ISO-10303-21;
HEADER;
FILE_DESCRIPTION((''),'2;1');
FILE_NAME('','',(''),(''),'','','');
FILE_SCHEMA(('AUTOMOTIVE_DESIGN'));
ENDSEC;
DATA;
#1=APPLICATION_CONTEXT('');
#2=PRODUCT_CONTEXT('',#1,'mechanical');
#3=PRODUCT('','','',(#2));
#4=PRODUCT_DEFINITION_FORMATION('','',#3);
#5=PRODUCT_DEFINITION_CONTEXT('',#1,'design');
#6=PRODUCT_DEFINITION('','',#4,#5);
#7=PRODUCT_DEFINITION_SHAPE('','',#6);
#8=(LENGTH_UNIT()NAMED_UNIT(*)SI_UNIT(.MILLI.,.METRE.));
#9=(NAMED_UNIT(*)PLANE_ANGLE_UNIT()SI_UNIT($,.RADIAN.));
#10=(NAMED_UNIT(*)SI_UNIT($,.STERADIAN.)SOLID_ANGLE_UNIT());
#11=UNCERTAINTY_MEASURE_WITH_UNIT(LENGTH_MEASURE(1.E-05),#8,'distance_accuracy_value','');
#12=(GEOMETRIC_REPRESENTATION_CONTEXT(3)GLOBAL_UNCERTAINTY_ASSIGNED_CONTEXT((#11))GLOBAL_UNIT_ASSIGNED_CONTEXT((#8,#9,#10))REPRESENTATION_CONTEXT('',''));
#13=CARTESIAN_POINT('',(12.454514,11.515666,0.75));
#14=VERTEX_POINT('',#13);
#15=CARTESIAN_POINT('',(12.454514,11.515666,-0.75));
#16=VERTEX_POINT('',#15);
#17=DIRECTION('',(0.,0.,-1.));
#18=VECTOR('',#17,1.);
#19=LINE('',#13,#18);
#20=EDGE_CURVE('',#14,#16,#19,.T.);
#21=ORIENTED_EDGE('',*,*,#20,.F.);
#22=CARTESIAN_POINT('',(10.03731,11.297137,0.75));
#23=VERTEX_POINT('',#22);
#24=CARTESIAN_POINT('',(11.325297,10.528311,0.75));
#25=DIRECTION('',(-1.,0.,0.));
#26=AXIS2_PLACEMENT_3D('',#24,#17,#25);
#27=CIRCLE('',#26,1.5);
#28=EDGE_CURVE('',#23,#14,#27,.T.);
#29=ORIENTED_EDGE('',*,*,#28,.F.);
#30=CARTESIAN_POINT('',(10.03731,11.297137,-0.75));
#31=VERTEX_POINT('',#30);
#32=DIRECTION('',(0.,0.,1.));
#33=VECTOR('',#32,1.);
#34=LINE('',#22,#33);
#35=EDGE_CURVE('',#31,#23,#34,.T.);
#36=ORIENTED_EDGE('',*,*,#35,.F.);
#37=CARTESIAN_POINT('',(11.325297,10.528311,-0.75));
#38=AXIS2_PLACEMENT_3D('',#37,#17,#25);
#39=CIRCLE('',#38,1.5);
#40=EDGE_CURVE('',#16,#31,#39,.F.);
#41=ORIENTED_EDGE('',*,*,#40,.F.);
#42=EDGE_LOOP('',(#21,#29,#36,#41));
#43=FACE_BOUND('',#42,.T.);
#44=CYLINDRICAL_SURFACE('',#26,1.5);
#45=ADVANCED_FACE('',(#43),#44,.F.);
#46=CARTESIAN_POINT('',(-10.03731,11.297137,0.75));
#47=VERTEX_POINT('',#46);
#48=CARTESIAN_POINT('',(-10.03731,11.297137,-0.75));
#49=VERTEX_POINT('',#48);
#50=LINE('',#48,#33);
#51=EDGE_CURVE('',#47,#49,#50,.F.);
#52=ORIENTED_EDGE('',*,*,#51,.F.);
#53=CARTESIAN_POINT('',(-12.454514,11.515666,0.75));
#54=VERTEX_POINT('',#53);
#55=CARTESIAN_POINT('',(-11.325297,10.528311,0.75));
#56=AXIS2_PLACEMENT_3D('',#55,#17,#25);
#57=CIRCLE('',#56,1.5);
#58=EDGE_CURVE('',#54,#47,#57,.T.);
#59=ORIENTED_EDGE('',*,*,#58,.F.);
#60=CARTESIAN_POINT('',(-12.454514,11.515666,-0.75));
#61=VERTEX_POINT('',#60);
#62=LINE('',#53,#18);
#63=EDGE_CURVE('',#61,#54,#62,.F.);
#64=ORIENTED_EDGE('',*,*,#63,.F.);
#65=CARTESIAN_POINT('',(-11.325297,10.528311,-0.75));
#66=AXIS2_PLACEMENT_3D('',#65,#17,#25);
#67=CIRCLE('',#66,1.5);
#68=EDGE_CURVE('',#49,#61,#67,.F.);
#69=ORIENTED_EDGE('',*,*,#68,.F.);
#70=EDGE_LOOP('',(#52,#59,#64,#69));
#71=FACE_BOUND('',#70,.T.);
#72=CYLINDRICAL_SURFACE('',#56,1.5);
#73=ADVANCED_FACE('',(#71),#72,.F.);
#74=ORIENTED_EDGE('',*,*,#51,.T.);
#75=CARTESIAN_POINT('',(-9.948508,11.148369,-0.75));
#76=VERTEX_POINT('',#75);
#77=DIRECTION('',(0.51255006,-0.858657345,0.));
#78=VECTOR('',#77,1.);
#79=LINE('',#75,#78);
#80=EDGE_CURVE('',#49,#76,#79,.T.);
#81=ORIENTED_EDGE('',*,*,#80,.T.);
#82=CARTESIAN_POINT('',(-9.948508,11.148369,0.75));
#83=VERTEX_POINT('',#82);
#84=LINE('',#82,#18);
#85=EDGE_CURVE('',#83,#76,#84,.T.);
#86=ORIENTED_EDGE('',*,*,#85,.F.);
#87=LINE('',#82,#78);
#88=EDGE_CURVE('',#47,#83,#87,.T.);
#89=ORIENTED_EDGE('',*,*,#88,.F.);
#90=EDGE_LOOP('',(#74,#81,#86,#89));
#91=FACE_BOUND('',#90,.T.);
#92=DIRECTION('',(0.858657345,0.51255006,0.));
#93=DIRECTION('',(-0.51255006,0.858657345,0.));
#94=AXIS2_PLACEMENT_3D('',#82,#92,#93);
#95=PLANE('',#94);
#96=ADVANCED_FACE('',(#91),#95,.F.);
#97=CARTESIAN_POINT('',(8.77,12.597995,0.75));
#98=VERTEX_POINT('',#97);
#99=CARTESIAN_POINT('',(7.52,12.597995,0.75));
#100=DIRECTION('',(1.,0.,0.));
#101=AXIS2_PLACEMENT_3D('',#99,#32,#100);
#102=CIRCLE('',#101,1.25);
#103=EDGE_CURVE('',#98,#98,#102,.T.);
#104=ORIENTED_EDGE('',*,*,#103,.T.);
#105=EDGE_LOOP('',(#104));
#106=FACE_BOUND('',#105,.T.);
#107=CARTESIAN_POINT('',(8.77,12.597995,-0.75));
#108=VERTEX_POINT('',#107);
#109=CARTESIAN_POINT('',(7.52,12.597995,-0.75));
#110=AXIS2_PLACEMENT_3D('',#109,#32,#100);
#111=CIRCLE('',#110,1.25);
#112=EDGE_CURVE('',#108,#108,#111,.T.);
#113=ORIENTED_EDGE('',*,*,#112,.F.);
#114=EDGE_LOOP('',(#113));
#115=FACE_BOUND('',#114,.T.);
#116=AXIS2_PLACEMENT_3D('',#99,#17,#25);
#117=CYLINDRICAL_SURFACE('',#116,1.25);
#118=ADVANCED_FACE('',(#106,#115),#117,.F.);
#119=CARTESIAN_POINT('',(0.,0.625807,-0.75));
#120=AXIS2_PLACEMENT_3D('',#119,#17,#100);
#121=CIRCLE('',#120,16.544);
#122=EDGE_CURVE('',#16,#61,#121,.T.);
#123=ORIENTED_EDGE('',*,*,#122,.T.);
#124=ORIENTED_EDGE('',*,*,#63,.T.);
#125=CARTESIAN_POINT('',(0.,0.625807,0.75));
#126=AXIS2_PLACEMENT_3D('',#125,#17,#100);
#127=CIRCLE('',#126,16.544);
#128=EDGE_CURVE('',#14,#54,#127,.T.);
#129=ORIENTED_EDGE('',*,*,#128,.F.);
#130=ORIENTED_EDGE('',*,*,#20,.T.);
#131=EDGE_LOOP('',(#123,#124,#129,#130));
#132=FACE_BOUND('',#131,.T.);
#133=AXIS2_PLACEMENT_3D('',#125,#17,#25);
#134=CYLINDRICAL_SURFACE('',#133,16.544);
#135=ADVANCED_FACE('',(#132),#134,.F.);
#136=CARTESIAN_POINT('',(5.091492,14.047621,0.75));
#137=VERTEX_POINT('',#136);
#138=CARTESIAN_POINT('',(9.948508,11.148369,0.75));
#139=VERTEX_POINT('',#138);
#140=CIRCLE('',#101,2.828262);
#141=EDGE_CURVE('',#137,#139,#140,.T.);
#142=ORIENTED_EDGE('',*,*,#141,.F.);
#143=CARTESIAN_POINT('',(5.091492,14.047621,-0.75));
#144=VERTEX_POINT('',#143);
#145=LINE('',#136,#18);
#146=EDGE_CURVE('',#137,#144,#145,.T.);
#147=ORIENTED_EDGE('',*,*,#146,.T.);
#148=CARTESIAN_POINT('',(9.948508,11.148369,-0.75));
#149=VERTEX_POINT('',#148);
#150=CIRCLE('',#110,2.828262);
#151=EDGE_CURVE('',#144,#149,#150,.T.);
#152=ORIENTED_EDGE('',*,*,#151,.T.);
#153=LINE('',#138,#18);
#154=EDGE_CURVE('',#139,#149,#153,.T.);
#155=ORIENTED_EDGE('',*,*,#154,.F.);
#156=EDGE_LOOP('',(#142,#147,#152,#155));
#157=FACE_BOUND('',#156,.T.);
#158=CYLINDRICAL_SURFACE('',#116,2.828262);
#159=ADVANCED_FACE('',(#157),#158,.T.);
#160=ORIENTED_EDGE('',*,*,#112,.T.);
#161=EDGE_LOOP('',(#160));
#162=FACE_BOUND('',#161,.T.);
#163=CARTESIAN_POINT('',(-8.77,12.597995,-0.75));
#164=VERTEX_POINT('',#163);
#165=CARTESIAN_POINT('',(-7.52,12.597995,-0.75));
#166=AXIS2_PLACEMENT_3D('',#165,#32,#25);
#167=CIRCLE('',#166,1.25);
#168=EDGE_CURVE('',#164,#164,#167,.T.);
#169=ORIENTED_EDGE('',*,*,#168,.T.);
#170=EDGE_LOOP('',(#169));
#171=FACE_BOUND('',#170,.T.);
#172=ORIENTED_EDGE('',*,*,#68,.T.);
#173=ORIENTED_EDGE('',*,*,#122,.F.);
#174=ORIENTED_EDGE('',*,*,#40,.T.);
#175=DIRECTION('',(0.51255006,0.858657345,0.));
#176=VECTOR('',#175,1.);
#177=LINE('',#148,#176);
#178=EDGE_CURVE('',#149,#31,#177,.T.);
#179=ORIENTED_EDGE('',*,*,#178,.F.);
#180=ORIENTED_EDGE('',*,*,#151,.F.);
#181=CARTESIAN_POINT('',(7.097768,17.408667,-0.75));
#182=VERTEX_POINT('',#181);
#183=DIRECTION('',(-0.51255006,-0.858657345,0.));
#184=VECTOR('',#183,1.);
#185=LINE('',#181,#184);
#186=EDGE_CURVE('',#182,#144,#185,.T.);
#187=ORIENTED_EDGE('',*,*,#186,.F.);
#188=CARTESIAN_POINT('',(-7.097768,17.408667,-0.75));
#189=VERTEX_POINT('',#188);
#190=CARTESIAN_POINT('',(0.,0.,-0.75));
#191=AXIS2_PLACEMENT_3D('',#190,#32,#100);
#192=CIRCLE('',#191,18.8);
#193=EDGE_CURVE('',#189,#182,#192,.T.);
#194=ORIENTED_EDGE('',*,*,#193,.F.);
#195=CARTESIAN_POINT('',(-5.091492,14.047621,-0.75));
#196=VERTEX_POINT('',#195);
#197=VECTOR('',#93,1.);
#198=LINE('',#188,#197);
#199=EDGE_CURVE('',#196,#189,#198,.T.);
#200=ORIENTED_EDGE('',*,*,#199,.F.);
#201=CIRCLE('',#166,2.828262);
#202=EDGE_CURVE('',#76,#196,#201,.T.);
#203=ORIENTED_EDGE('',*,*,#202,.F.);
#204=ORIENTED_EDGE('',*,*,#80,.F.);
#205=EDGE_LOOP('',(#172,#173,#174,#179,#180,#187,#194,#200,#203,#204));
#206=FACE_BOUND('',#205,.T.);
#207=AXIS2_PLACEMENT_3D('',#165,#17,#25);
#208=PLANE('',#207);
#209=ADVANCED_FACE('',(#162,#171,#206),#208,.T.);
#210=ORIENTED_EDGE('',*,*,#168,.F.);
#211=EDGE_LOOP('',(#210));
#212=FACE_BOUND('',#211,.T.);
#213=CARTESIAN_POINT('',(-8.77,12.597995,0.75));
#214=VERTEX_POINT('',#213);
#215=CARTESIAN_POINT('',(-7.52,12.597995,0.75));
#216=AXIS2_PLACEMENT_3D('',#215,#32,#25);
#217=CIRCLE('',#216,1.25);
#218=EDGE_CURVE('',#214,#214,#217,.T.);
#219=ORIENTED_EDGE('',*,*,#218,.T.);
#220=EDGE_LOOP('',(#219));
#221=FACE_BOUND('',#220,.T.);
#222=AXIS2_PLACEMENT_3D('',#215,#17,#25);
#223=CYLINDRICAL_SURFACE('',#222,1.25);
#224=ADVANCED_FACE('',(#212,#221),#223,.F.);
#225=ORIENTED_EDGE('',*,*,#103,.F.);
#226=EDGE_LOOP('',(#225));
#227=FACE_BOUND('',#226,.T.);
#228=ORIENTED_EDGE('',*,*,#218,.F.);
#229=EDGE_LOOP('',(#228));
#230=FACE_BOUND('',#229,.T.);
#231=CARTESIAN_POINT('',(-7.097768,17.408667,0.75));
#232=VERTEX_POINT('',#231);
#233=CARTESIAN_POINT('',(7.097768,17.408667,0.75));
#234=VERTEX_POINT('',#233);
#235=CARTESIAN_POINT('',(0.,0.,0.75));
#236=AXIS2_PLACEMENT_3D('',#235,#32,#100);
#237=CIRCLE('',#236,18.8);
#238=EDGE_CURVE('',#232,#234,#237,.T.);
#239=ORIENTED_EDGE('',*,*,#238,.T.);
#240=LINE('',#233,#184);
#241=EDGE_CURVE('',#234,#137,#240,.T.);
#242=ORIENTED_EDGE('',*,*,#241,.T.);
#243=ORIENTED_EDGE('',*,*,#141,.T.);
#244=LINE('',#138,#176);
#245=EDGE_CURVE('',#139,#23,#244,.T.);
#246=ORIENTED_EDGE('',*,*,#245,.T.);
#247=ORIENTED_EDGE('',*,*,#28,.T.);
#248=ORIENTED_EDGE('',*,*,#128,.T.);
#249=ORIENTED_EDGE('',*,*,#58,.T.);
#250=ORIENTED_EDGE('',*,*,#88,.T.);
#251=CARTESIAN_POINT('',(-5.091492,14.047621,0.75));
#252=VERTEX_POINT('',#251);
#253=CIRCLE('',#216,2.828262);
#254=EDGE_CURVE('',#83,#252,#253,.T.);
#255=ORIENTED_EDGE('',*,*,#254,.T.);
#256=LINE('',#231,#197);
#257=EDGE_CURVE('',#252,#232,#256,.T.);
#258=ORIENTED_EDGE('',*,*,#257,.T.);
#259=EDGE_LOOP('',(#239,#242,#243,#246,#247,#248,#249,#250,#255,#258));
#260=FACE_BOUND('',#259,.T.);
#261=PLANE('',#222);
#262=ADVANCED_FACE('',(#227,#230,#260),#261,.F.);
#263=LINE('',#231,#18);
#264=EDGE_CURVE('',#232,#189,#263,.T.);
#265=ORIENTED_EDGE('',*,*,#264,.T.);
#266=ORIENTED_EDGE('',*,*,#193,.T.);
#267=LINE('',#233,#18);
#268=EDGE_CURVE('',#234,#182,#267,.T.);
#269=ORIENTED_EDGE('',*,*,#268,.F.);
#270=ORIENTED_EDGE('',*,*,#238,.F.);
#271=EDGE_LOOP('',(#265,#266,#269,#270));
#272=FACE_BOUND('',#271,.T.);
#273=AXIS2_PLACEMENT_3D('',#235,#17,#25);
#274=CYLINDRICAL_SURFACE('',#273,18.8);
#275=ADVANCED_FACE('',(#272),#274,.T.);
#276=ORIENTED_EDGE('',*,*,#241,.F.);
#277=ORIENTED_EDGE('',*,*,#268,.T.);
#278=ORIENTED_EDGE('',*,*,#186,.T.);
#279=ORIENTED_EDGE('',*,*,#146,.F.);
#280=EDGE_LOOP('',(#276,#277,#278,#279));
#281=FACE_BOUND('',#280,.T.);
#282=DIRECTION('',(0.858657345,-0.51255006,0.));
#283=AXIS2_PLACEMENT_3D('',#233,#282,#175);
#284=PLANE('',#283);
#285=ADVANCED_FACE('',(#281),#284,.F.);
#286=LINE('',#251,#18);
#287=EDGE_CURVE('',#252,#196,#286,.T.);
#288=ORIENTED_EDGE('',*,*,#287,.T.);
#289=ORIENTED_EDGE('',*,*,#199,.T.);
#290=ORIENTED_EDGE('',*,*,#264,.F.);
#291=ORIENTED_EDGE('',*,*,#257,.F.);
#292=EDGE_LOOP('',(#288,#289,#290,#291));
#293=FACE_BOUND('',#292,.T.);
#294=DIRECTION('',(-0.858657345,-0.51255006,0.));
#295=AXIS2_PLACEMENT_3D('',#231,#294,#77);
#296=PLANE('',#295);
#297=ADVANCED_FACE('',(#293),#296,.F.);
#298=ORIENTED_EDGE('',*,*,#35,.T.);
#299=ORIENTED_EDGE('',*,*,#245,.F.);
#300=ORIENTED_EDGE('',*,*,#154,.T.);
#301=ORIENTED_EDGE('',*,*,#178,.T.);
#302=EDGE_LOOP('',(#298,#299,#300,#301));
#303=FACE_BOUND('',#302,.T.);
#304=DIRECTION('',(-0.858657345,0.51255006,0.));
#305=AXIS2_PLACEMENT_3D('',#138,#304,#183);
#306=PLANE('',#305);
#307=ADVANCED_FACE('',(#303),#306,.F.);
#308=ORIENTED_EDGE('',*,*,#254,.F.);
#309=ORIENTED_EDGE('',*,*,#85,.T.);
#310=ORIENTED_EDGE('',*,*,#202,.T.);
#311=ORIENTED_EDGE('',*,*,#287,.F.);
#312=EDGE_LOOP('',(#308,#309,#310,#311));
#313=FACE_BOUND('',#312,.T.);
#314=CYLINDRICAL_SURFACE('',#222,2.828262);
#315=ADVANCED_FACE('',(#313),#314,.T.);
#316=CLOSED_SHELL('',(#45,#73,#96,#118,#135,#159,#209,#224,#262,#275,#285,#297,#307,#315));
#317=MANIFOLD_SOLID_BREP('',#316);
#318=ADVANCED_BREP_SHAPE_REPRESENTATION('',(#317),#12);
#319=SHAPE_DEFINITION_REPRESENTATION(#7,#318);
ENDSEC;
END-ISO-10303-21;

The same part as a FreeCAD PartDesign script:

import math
import FreeCAD as App
import Part
import Sketcher

V = App.Vector
Q = App.Units.Quantity


def edges_at(feature, points):
    """Names of the edges that pass closest to the given points."""
    edges = feature.Shape.Edges
    near = lambda p: min(range(len(edges)), key=lambda i: edges[i].distToShape(Part.Vertex(*p))[0])
    return sorted({f"Edge{near(p) + 1}" for p in points})

doc = App.newDocument("Part")
params = doc.addObject("Spreadsheet::Sheet", "Params")
for row, (alias, value) in enumerate([
    ("sketch1_diameter", "2.5 mm"),
    ("sketch1_radius", "18.8 mm"),
    ("pad1_length", "1.5 mm"),
    ("fillet_radius", "1.5 mm"),
], start=1):
    params.set(f"A{row}", alias)
    params.set(f"B{row}", "=" + value)
    params.setAlias(f"B{row}", alias)

body = doc.addObject("PartDesign::Body", "Body")

# Sketch on XY plane
sketch1 = body.newObject("Sketcher::SketchObject", "Sketch")
sketch1.AttachmentSupport = (doc.getObject("XY_Plane"), [""])
sketch1.MapMode = "FlatFace"
sketch1.addGeometry(Part.LineSegment(V(7.1, 17.4, 0), V(5.1, 14, 0)), False)
sketch1.addGeometry(Part.ArcOfCircle(Part.Circle(V(7.5, 12.6, 0), V(0, 0, 1), 2.8), math.radians(149), math.radians(329)), False)
sketch1.addGeometry(Part.LineSegment(V(9.9, 11.1, 0), V(11, 13, 0)), False)
sketch1.addGeometry(Part.ArcOfCircle(Part.Circle(V(0, 0.6, 0), V(0, 0, 1), 16.5), math.radians(132), math.radians(408)), False)
sketch1.addGeometry(Part.LineSegment(V(-11, 13, 0), V(-9.9, 11.1, 0)), False)
sketch1.addGeometry(Part.ArcOfCircle(Part.Circle(V(-7.5, 12.6, 0), V(0, 0, 1), 2.8), math.radians(-149), math.radians(31)), False)
sketch1.addGeometry(Part.LineSegment(V(-5.1, 14, 0), V(-7.1, 17.4, 0)), False)
sketch1.addGeometry(Part.ArcOfCircle(Part.Circle(V(0, 0, 0), V(0, 0, 1), 18.8), math.radians(112), math.radians(428)), False)
sketch1.addGeometry(Part.Circle(V(-7.5, 12.6, 0), V(0, 0, 1), 1.2), False)
sketch1.addGeometry(Part.Circle(V(7.5, 12.6, 0), V(0, 0, 1), 1.2), False)
sketch1.addConstraint(Sketcher.Constraint("Tangent", 0, 2, 1, 1))
sketch1.addConstraint(Sketcher.Constraint("Tangent", 1, 2, 2, 1))
sketch1.addConstraint(Sketcher.Constraint("Coincident", 2, 2, 3, 2))
sketch1.addConstraint(Sketcher.Constraint("Coincident", 3, 1, 4, 1))
sketch1.addConstraint(Sketcher.Constraint("Tangent", 4, 2, 5, 1))
sketch1.addConstraint(Sketcher.Constraint("Tangent", 5, 2, 6, 1))
sketch1.addConstraint(Sketcher.Constraint("Coincident", 6, 2, 7, 1))
sketch1.addConstraint(Sketcher.Constraint("Coincident", 7, 2, 0, 1))
sketch1.addConstraint(Sketcher.Constraint("Coincident", 7, 3, -1, 1))
sketch1.addConstraint(Sketcher.Constraint("Coincident", 8, 3, 5, 3))
sketch1.addConstraint(Sketcher.Constraint("Coincident", 9, 3, 1, 3))
sketch1.addConstraint(Sketcher.Constraint("Equal", 1, 5))
sketch1.addConstraint(Sketcher.Constraint("Equal", 8, 9))
sketch1.addConstraint(Sketcher.Constraint("Symmetric", 1, 3, 5, 3, -2))
sketch1.addConstraint(Sketcher.Constraint("Symmetric", 2, 2, 3, 1, -2))
sketch1.addConstraint(Sketcher.Constraint("Parallel", 0, 2))
sketch1.addConstraint(Sketcher.Constraint("Parallel", 4, 6))
sketch1.addConstraint(Sketcher.Constraint("Diameter", 8, Q("2.5 mm")))
sketch1.addConstraint(Sketcher.Constraint("Radius", 7, Q("18.8 mm")))
sketch1.addConstraint(Sketcher.Constraint("Radius", 3, Q("16.544 mm")))
sketch1.addConstraint(Sketcher.Constraint("DistanceX", -1, 1, 1, 3, Q("7.52 mm")))
sketch1.addConstraint(Sketcher.Constraint("Radius", 1, Q("2.828262 mm")))
sketch1.addConstraint(Sketcher.Constraint("DistanceY", 1, 3, 2, 2, Q("0.359699 mm")))
sketch1.addConstraint(Sketcher.Constraint("DistanceX", -1, 1, 0, 2, Q("5.091492 mm")))
sketch1.addConstraint(Sketcher.Constraint("DistanceY", -1, 1, 0, 2, Q("14.047621 mm")))
sketch1.setExpression("Constraints[17]", "Params.sketch1_diameter")
sketch1.setExpression("Constraints[18]", "Params.sketch1_radius")
pad1 = body.newObject("PartDesign::Pad", "Pad")
pad1.Profile = sketch1
pad1.setExpression("Length", "Params.pad1_length")
pad1.Midplane = True
doc.recompute()

fillet = body.newObject("PartDesign::Fillet", "Fillet")
fillet.Base = (pad1, edges_at(pad1, [(-11.029, 12.958, 0), (11.029, 12.958, 0)]))
fillet.setExpression("Radius", "Params.fillet_radius")

doc.recompute()
